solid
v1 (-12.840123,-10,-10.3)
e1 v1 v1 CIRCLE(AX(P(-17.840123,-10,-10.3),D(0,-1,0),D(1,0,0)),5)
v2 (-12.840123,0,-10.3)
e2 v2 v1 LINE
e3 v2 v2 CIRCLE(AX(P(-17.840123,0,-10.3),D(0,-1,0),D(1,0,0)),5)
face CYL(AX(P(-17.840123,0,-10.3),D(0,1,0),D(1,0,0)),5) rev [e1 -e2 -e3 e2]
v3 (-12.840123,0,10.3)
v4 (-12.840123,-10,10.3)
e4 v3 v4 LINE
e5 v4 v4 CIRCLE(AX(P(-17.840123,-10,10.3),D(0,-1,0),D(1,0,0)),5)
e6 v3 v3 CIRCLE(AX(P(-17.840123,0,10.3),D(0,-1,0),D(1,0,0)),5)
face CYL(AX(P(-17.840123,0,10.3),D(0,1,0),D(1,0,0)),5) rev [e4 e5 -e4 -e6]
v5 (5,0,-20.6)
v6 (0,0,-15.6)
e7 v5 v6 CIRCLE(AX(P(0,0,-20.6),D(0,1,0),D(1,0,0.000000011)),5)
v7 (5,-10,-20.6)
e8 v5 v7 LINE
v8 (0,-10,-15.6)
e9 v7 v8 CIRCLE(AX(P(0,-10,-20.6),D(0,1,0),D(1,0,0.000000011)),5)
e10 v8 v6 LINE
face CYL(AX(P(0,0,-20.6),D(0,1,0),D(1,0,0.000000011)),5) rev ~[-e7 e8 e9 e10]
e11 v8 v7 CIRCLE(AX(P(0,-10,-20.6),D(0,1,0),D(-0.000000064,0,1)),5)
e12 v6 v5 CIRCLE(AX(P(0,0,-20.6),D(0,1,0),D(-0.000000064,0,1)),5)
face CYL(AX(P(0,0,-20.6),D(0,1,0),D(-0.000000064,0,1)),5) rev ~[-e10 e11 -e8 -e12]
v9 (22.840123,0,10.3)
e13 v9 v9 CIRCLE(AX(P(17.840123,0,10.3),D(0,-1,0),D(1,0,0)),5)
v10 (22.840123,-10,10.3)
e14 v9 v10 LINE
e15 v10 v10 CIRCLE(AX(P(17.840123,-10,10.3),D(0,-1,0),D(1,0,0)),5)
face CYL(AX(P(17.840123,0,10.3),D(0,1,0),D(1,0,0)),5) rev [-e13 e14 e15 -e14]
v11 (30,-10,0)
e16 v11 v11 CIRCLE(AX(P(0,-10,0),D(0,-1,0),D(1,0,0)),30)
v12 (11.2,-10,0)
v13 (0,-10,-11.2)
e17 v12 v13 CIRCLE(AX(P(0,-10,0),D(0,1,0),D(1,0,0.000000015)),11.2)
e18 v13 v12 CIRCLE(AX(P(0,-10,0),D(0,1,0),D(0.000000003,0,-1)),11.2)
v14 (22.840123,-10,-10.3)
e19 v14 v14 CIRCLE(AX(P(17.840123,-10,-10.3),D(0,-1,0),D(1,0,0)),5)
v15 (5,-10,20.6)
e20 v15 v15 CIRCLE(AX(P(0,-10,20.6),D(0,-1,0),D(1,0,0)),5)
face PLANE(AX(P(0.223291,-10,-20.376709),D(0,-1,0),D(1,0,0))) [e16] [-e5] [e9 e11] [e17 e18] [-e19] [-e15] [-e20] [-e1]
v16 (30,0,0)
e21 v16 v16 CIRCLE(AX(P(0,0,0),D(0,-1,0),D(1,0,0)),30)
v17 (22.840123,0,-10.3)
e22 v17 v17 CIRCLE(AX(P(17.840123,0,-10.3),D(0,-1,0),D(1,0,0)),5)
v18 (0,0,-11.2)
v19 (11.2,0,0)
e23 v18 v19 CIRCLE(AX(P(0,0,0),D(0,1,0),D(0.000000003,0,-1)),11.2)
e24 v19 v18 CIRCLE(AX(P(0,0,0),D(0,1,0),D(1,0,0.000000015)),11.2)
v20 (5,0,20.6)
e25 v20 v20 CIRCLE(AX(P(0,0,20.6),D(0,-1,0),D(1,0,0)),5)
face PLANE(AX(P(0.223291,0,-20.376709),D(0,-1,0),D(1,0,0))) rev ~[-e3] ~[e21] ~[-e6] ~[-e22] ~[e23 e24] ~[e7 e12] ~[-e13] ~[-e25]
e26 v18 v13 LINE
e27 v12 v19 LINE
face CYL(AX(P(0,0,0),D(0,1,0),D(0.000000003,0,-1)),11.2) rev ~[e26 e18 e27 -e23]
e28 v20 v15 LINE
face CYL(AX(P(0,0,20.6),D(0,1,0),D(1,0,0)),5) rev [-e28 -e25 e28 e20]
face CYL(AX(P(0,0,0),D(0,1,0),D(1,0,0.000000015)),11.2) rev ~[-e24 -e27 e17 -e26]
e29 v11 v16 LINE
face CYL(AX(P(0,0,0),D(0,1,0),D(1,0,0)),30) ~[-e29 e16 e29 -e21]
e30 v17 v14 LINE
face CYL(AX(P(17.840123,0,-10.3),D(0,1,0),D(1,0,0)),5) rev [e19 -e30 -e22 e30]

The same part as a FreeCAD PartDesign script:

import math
import FreeCAD as App
import Part
import Sketcher

V = App.Vector

doc = App.newDocument("Part")
body = doc.addObject("PartDesign::Body", "Body")

sketch1 = body.newObject("Sketcher::SketchObject", "Sketch")
sketch1.AttachmentSupport = (doc.getObject("XZ_Plane"), [""])
sketch1.MapMode = "FlatFace"
sketch1.addGeometry([
    Part.Circle(V(0, 0, 0), V(0, 0, 1), 30),
    Part.ArcOfCircle(Part.Circle(V(0, -20.6, 0), V(0, 0, 1), 5), math.radians(-0.000004), math.radians(90.000004)),
    Part.ArcOfCircle(Part.Circle(V(0, -20.6, 0), V(0, 0, 1), 5), math.radians(89.999999), math.radians(360.000001)),
    Part.Circle(V(-17.840123, -10.3, 0), V(0, 0, 1), 5),
    Part.Circle(V(17.840123, -10.3, 0), V(0, 0, 1), 5),
    Part.Circle(V(-17.840123, 10.3, 0), V(0, 0, 1), 5),
    Part.ArcOfCircle(Part.Circle(V(0, 0, 0), V(0, 0, 1), 11.2), math.radians(-90.000001), math.radians(0.000001)),
    Part.ArcOfCircle(Part.Circle(V(0, 0, 0), V(0, 0, 1), 11.2), math.radians(0), math.radians(270)),
    Part.Circle(V(17.840123, 10.3, 0), V(0, 0, 1), 5),
    Part.Circle(V(0, 20.6, 0), V(0, 0, 1), 5),
], False)
sketch1.addConstraint([
    Sketcher.Constraint("Tangent", 1, 1, 2, 2),
    Sketcher.Constraint("Coincident", 2, 1, 1, 2),
    Sketcher.Constraint("Tangent", 6, 1, 7, 2),
    Sketcher.Constraint("Coincident", 7, 1, 6, 2),
    Sketcher.Constraint("Coincident", 0, 3, -1, 1),
    Sketcher.Constraint("Coincident", 6, 3, -1, 1),
    Sketcher.Constraint("Equal", 2, 3),
    Sketcher.Constraint("Equal", 3, 4),
    Sketcher.Constraint("Equal", 4, 5),
    Sketcher.Constraint("Equal", 5, 8),
    Sketcher.Constraint("Equal", 8, 9),
    Sketcher.Constraint("Symmetric", 4, 3, 5, 3, -1, 1),
    Sketcher.Constraint("Symmetric", 3, 3, 8, 3, -1, 1),
    Sketcher.Constraint("Symmetric", 1, 3, 9, 3, -1, 1),
    Sketcher.Constraint("Symmetric", 3, 3, 4, 3, -2),
    Sketcher.Constraint("PointOnObject", 1, 3, -2),
    Sketcher.Constraint("PointOnObject", 2, 1, -2),
    Sketcher.Constraint("PointOnObject", 6, 1, -2),
    Sketcher.Constraint("PointOnObject", 7, 1, -1),
    Sketcher.Constraint("Horizontal", 2, 3, 1, 1),
    Sketcher.Constraint("Diameter", 0, 60.0),
    Sketcher.Constraint("Diameter", 3, 10.0),
    Sketcher.Constraint("Radius", 6, 11.2),
    Sketcher.Constraint("DistanceY", 1, 3, -1, 1, 20.6),
    Sketcher.Constraint("DistanceY", 3, 3, -1, 1, 10.3),
    Sketcher.Constraint("DistanceX", 3, 3, -1, 1, 17.840123),
])
pad1 = body.newObject("PartDesign::Pad", "Pad")
pad1.Profile = sketch1
pad1.Length = 7

sketch2 = body.newObject("Sketcher::SketchObject", "Sketch001")
sketch2.AttachmentSupport = (doc.getObject("XZ_Plane"), [""])
sketch2.MapMode = "FlatFace"
sketch2.addGeometry([
    Part.Circle(V(0, 0, 0), V(0, 0, 1), 30),
    Part.ArcOfCircle(Part.Circle(V(0, -20.6, 0), V(0, 0, 1), 5), math.radians(-0.000004), math.radians(90.000004)),
    Part.ArcOfCircle(Part.Circle(V(0, -20.6, 0), V(0, 0, 1), 5), math.radians(89.999999), math.radians(360.000001)),
    Part.Circle(V(-17.840123, -10.3, 0), V(0, 0, 1), 5),
    Part.Circle(V(17.840123, -10.3, 0), V(0, 0, 1), 5),
    Part.Circle(V(-17.840123, 10.3, 0), V(0, 0, 1), 5),
    Part.ArcOfCircle(Part.Circle(V(0, 0, 0), V(0, 0, 1), 11.2), math.radians(-90.000001), math.radians(0.000001)),
    Part.ArcOfCircle(Part.Circle(V(0, 0, 0), V(0, 0, 1), 11.2), math.radians(0), math.radians(270)),
    Part.Circle(V(17.840123, 10.3, 0), V(0, 0, 1), 5),
    Part.Circle(V(0, 20.6, 0), V(0, 0, 1), 5),
], False)
sketch2.addConstraint([
    Sketcher.Constraint("Tangent", 1, 1, 2, 2),
    Sketcher.Constraint("Coincident", 2, 1, 1, 2),
    Sketcher.Constraint("Tangent", 6, 1, 7, 2),
    Sketcher.Constraint("Coincident", 7, 1, 6, 2),
    Sketcher.Constraint("Coincident", 0, 3, -1, 1),
    Sketcher.Constraint("Coincident", 6, 3, -1, 1),
    Sketcher.Constraint("Equal", 2, 3),
    Sketcher.Constraint("Equal", 3, 4),
    Sketcher.Constraint("Equal", 4, 5),
    Sketcher.Constraint("Equal", 5, 8),
    Sketcher.Constraint("Equal", 8, 9),
    Sketcher.Constraint("Symmetric", 4, 3, 5, 3, -1, 1),
    Sketcher.Constraint("Symmetric", 3, 3, 8, 3, -1, 1),
    Sketcher.Constraint("Symmetric", 1, 3, 9, 3, -1, 1),
    Sketcher.Constraint("Symmetric", 3, 3, 4, 3, -2),
    Sketcher.Constraint("PointOnObject", 1, 3, -2),
    Sketcher.Constraint("PointOnObject", 2, 1, -2),
    Sketcher.Constraint("PointOnObject", 6, 1, -2),
    Sketcher.Constraint("PointOnObject", 7, 1, -1),
    Sketcher.Constraint("Horizontal", 2, 3, 1, 1),
    Sketcher.Constraint("Diameter", 0, 60.0),
    Sketcher.Constraint("Diameter", 3, 10.0),
    Sketcher.Constraint("Radius", 6, 11.2),
    Sketcher.Constraint("DistanceY", 1, 3, -1, 1, 20.6),
    Sketcher.Constraint("DistanceY", 3, 3, -1, 1, 10.3),
    Sketcher.Constraint("DistanceX", 3, 3, -1, 1, 17.840123),
])
pad2 = body.newObject("PartDesign::Pad", "Pad001")
pad2.Profile = sketch2
pad2.Length = 10

doc.recompute()
